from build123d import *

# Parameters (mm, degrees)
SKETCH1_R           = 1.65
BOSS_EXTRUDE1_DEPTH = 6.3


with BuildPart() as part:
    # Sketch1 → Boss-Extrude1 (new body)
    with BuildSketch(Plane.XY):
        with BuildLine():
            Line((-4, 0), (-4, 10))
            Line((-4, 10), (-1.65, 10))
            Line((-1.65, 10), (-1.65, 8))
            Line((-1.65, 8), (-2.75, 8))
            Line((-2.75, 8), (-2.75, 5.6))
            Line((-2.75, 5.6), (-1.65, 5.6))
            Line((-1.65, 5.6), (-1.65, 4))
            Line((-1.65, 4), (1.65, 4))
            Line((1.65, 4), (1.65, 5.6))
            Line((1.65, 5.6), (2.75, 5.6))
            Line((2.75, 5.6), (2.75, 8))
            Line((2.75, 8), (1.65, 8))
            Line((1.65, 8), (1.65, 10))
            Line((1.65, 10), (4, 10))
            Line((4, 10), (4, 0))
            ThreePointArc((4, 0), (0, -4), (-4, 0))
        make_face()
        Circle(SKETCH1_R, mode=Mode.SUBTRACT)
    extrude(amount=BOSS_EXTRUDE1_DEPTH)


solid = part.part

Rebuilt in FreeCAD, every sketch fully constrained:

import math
import FreeCAD as App
import Part
import Sketcher
from FreeCAD import Vector
Q = App.Units.Quantity

doc = App.newDocument("Part")
body = doc.addObject("PartDesign::Body", "Body")

sketch1 = body.newObject("Sketcher::SketchObject", "Sketch")
sketch1.AttachmentSupport = (doc.getObject("XY_Plane"), [""])
sketch1.MapMode = "FlatFace"
sketch1.addGeometry(Part.LineSegment(Vector(-4, 10, 0), Vector(-4, 0, 0)), False)
sketch1.addGeometry(Part.ArcOfCircle(Part.Circle(Vector(0, 0, 0), Vector(0, 0, 1), 4), math.radians(180), math.radians(360)), False)
sketch1.addGeometry(Part.LineSegment(Vector(4, 0, 0), Vector(4, 10, 0)), False)
sketch1.addGeometry(Part.LineSegment(Vector(4, 10, 0), Vector(1.6, 10, 0)), False)
sketch1.addGeometry(Part.LineSegment(Vector(1.6, 10, 0), Vector(1.6, 8, 0)), False)
sketch1.addGeometry(Part.LineSegment(Vector(1.6, 8, 0), Vector(2.8, 8, 0)), False)
sketch1.addGeometry(Part.LineSegment(Vector(2.8, 8, 0), Vector(2.8, 5.6, 0)), False)
sketch1.addGeometry(Part.LineSegment(Vector(2.8, 5.6, 0), Vector(1.6, 5.6, 0)), False)
sketch1.addGeometry(Part.LineSegment(Vector(1.6, 5.6, 0), Vector(1.6, 4, 0)), False)
sketch1.addGeometry(Part.LineSegment(Vector(1.6, 4, 0), Vector(-1.6, 4, 0)), False)
sketch1.addGeometry(Part.LineSegment(Vector(-1.6, 4, 0), Vector(-1.6, 5.6, 0)), False)
sketch1.addGeometry(Part.LineSegment(Vector(-1.6, 5.6, 0), Vector(-2.8, 5.6, 0)), False)
sketch1.addGeometry(Part.LineSegment(Vector(-2.8, 5.6, 0), Vector(-2.8, 8, 0)), False)
sketch1.addGeometry(Part.LineSegment(Vector(-2.8, 8, 0), Vector(-1.6, 8, 0)), False)
sketch1.addGeometry(Part.LineSegment(Vector(-1.6, 8, 0), Vector(-1.6, 10, 0)), False)
sketch1.addGeometry(Part.LineSegment(Vector(-1.6, 10, 0), Vector(-4, 10, 0)), False)
sketch1.addGeometry(Part.Circle(Vector(0, 0, 0), Vector(0, 0, 1), 1.6), False)
sketch1.addConstraint(Sketcher.Constraint("Tangent", 0, 2, 1, 1))
sketch1.addConstraint(Sketcher.Constraint("Tangent", 1, 2, 2, 1))
sketch1.addConstraint(Sketcher.Constraint("Coincident", 2, 2, 3, 1))
sketch1.addConstraint(Sketcher.Constraint("Coincident", 3, 2, 4, 1))
sketch1.addConstraint(Sketcher.Constraint("Coincident", 4, 2, 5, 1))
sketch1.addConstraint(Sketcher.Constraint("Coincident", 5, 2, 6, 1))
sketch1.addConstraint(Sketcher.Constraint("Coincident", 6, 2, 7, 1))
sketch1.addConstraint(Sketcher.Constraint("Coincident", 7, 2, 8, 1))
sketch1.addConstraint(Sketcher.Constraint("Coincident", 8, 2, 9, 1))
sketch1.addConstraint(Sketcher.Constraint("Coincident", 9, 2, 10, 1))
sketch1.addConstraint(Sketcher.Constraint("Coincident", 10, 2, 11, 1))
sketch1.addConstraint(Sketcher.Constraint("Coincident", 11, 2, 12, 1))
sketch1.addConstraint(Sketcher.Constraint("Coincident", 12, 2, 13, 1))
sketch1.addConstraint(Sketcher.Constraint("Coincident", 13, 2, 14, 1))
sketch1.addConstraint(Sketcher.Constraint("Coincident", 14, 2, 15, 1))
sketch1.addConstraint(Sketcher.Constraint("Coincident", 15, 2, 0, 1))
sketch1.addConstraint(Sketcher.Constraint("Vertical", 0))
sketch1.addConstraint(Sketcher.Constraint("Vertical", 2))
sketch1.addConstraint(Sketcher.Constraint("Horizontal", 3))
sketch1.addConstraint(Sketcher.Constraint("Vertical", 4))
sketch1.addConstraint(Sketcher.Constraint("Horizontal", 5))
sketch1.addConstraint(Sketcher.Constraint("Vertical", 6))
sketch1.addConstraint(Sketcher.Constraint("Horizontal", 7))
sketch1.addConstraint(Sketcher.Constraint("Vertical", 8))
sketch1.addConstraint(Sketcher.Constraint("Horizontal", 9))
sketch1.addConstraint(Sketcher.Constraint("Vertical", 10))
sketch1.addConstraint(Sketcher.Constraint("Horizontal", 11))
sketch1.addConstraint(Sketcher.Constraint("Vertical", 12))
sketch1.addConstraint(Sketcher.Constraint("Horizontal", 13))
sketch1.addConstraint(Sketcher.Constraint("Vertical", 14))
sketch1.addConstraint(Sketcher.Constraint("Horizontal", 15))
sketch1.addConstraint(Sketcher.Constraint("Coincident", 1, 3, -1, 1))
sketch1.addConstraint(Sketcher.Constraint("Coincident", 16, 3, -1, 1))
sketch1.addConstraint(Sketcher.Constraint("Symmetric", 7, 2, 10, 2, -2))
sketch1.addConstraint(Sketcher.Constraint("Symmetric", 5, 2, 12, 2, -2))
sketch1.addConstraint(Sketcher.Constraint("Symmetric", 3, 2, 14, 2, -2))
sketch1.addConstraint(Sketcher.Constraint("Vertical", 4, 2, 7, 2))
sketch1.addConstraint(Sketcher.Constraint("Radius", 1, Q("4 mm")))
sketch1.addConstraint(Sketcher.Constraint("Diameter", 16, Q("3.3 mm")))
sketch1.addConstraint(Sketcher.Constraint("DistanceY", 0, 2, 0, 1, Q("10 mm")))
sketch1.addConstraint(Sketcher.Constraint("DistanceY", 4, 2, 4, 1, Q("2 mm")))
sketch1.addConstraint(Sketcher.Constraint("DistanceX", 5, 1, 5, 2, Q("1.1 mm")))
sketch1.addConstraint(Sketcher.Constraint("DistanceX", 9, 2, 9, 1, Q("3.3 mm")))
sketch1.addConstraint(Sketcher.Constraint("DistanceY", 6, 2, 6, 1, Q("2.4 mm")))
sketch1.addConstraint(Sketcher.Constraint("DistanceY", 8, 2, 8, 1, Q("1.6 mm")))
pad1 = body.newObject("PartDesign::Pad", "Pad")
pad1.Profile = sketch1
pad1.Length = 6.3

doc.recompute()
